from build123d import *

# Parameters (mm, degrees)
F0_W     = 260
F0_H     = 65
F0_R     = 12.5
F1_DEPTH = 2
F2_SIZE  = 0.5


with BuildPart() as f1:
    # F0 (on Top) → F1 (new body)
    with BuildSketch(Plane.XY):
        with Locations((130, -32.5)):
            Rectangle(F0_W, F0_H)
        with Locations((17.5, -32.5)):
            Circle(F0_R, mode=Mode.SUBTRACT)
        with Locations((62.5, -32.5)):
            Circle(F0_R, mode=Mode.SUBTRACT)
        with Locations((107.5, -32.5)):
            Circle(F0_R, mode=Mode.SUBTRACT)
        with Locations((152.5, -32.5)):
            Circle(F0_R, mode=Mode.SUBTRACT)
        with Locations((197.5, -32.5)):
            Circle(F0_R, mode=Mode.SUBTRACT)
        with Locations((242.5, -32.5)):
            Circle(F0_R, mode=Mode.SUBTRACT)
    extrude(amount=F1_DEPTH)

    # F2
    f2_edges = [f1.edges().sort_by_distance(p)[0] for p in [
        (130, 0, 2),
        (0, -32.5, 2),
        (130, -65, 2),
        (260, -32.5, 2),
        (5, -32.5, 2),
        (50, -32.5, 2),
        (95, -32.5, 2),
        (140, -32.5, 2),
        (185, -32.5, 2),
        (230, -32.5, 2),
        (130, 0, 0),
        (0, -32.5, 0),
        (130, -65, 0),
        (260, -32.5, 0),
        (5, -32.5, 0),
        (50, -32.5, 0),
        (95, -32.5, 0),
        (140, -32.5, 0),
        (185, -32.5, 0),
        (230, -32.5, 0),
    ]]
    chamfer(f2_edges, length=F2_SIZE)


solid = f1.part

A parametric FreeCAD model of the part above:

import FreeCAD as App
import Part
import Sketcher

V = App.Vector


def edges_at(feature, points):
    """Names of the edges that pass closest to the given points."""
    edges = feature.Shape.Edges
    near = lambda p: min(range(len(edges)), key=lambda i: edges[i].distToShape(Part.Vertex(*p))[0])
    return sorted({f"Edge{near(p) + 1}" for p in points})


def add_polygon(sketch, points):
    """Adds a closed chain of lines whose ends are joined by coincident constraints."""
    first, n = sketch.GeometryCount, len(points)
    for a, b in zip(points, points[1:] + points[:1]):
        sketch.addGeometry(Part.LineSegment(App.Vector(*a, 0), App.Vector(*b, 0)), False)
    for i in range(n):
        sketch.addConstraint(Sketcher.Constraint("Coincident", first + i, 2, first + (i + 1) % n, 1))

doc = App.newDocument("Part")
params = doc.addObject("Spreadsheet::Sheet", "Params")
for row, (alias, value) in enumerate([
    ("sketch1_diameter", "25 mm"),
    ("sketch1_width", "260 mm"),
    ("sketch1_height", "65 mm"),
    ("pad1_length", "2 mm"),
    ("chamfer_size", "0.5 mm"),
], start=1):
    params.set(f"A{row}", alias)
    params.set(f"B{row}", "=" + value)
    params.setAlias(f"B{row}", alias)

body = doc.addObject("PartDesign::Body", "Body")

# Sketch on XY plane
sketch1 = body.newObject("Sketcher::SketchObject", "Sketch")
sketch1.AttachmentSupport = (doc.getObject("XY_Plane"), [""])
sketch1.MapMode = "FlatFace"
add_polygon(sketch1, [(0, 0), (0, -65), (260, -65), (260, 0)])  # lines 0-3
sketch1.addGeometry(Part.Circle(V(18, -32, 0), V(0, 0, 1), 12), False)  # 4
sketch1.addGeometry(Part.Circle(V(62, -32, 0), V(0, 0, 1), 12), False)  # 5
sketch1.addGeometry(Part.Circle(V(108, -32, 0), V(0, 0, 1), 12), False)  # 6
sketch1.addGeometry(Part.Circle(V(152, -32, 0), V(0, 0, 1), 12), False)  # 7
sketch1.addGeometry(Part.Circle(V(198, -32, 0), V(0, 0, 1), 12), False)  # 8
sketch1.addGeometry(Part.Circle(V(242, -32, 0), V(0, 0, 1), 12), False)  # 9
sketch1.addConstraint([
    Sketcher.Constraint("Vertical", 0),
    Sketcher.Constraint("Horizontal", 1),
    Sketcher.Constraint("Vertical", 2),
    Sketcher.Constraint("Horizontal", 3),
    Sketcher.Constraint("Coincident", 3, 2, -1, 1),
    Sketcher.Constraint("Equal", 4, 5),
    Sketcher.Constraint("Equal", 5, 6),
    Sketcher.Constraint("Equal", 6, 7),
    Sketcher.Constraint("Equal", 7, 8),
    Sketcher.Constraint("Equal", 8, 9),
    Sketcher.Constraint("Horizontal", 4, 3, 5, 3),
    Sketcher.Constraint("Horizontal", 5, 3, 6, 3),
    Sketcher.Constraint("Horizontal", 6, 3, 7, 3),
    Sketcher.Constraint("Horizontal", 7, 3, 8, 3),
    Sketcher.Constraint("Horizontal", 8, 3, 9, 3),
    Sketcher.Constraint("Diameter", 4, 25.0),
    Sketcher.Constraint("DistanceX", 1, 1, 1, 2, 260.0),
    Sketcher.Constraint("DistanceY", 0, 2, 0, 1, 65.0),
    Sketcher.Constraint("DistanceX", 4, 3, 5, 3, 45.0),
    Sketcher.Constraint("DistanceX", 5, 3, 6, 3, 45.0),
    Sketcher.Constraint("DistanceX", 6, 3, 7, 3, 45.0),
    Sketcher.Constraint("DistanceX", 7, 3, 8, 3, 45.0),
    Sketcher.Constraint("DistanceX", 8, 3, 9, 3, 45.0),
    Sketcher.Constraint("DistanceX", -1, 1, 4, 3, 17.5),
    Sketcher.Constraint("DistanceY", 4, 3, -1, 1, 32.5),
])
sketch1.setExpression("Constraints[19]", "Params.sketch1_diameter")
sketch1.setExpression("Constraints[20]", "Params.sketch1_width")
sketch1.setExpression("Constraints[21]", "Params.sketch1_height")
pad1 = body.newObject("PartDesign::Pad", "Pad")
pad1.Profile = sketch1
pad1.setExpression("Length", "Params.pad1_length")
doc.recompute()

chamfer = body.newObject("PartDesign::Chamfer", "Chamfer")
chamfer.Base = (pad1, edges_at(pad1, [
    (130, 0, 2),
    (0, -32.5, 2),
    (130, -65, 2),
    (260, -32.5, 2),
    (5, -32.5, 2),
    (50, -32.5, 2),
    (95, -32.5, 2),
    (140, -32.5, 2),
    (185, -32.5, 2),
    (230, -32.5, 2),
    (130, 0, 0),
    (0, -32.5, 0),
    (130, -65, 0),
    (260, -32.5, 0),
    (5, -32.5, 0),
    (50, -32.5, 0),
    (95, -32.5, 0),
    (140, -32.5, 0),
    (185, -32.5, 0),
    (230, -32.5, 0),
]))
chamfer.setExpression("Size", "Params.chamfer_size")

doc.recompute()
